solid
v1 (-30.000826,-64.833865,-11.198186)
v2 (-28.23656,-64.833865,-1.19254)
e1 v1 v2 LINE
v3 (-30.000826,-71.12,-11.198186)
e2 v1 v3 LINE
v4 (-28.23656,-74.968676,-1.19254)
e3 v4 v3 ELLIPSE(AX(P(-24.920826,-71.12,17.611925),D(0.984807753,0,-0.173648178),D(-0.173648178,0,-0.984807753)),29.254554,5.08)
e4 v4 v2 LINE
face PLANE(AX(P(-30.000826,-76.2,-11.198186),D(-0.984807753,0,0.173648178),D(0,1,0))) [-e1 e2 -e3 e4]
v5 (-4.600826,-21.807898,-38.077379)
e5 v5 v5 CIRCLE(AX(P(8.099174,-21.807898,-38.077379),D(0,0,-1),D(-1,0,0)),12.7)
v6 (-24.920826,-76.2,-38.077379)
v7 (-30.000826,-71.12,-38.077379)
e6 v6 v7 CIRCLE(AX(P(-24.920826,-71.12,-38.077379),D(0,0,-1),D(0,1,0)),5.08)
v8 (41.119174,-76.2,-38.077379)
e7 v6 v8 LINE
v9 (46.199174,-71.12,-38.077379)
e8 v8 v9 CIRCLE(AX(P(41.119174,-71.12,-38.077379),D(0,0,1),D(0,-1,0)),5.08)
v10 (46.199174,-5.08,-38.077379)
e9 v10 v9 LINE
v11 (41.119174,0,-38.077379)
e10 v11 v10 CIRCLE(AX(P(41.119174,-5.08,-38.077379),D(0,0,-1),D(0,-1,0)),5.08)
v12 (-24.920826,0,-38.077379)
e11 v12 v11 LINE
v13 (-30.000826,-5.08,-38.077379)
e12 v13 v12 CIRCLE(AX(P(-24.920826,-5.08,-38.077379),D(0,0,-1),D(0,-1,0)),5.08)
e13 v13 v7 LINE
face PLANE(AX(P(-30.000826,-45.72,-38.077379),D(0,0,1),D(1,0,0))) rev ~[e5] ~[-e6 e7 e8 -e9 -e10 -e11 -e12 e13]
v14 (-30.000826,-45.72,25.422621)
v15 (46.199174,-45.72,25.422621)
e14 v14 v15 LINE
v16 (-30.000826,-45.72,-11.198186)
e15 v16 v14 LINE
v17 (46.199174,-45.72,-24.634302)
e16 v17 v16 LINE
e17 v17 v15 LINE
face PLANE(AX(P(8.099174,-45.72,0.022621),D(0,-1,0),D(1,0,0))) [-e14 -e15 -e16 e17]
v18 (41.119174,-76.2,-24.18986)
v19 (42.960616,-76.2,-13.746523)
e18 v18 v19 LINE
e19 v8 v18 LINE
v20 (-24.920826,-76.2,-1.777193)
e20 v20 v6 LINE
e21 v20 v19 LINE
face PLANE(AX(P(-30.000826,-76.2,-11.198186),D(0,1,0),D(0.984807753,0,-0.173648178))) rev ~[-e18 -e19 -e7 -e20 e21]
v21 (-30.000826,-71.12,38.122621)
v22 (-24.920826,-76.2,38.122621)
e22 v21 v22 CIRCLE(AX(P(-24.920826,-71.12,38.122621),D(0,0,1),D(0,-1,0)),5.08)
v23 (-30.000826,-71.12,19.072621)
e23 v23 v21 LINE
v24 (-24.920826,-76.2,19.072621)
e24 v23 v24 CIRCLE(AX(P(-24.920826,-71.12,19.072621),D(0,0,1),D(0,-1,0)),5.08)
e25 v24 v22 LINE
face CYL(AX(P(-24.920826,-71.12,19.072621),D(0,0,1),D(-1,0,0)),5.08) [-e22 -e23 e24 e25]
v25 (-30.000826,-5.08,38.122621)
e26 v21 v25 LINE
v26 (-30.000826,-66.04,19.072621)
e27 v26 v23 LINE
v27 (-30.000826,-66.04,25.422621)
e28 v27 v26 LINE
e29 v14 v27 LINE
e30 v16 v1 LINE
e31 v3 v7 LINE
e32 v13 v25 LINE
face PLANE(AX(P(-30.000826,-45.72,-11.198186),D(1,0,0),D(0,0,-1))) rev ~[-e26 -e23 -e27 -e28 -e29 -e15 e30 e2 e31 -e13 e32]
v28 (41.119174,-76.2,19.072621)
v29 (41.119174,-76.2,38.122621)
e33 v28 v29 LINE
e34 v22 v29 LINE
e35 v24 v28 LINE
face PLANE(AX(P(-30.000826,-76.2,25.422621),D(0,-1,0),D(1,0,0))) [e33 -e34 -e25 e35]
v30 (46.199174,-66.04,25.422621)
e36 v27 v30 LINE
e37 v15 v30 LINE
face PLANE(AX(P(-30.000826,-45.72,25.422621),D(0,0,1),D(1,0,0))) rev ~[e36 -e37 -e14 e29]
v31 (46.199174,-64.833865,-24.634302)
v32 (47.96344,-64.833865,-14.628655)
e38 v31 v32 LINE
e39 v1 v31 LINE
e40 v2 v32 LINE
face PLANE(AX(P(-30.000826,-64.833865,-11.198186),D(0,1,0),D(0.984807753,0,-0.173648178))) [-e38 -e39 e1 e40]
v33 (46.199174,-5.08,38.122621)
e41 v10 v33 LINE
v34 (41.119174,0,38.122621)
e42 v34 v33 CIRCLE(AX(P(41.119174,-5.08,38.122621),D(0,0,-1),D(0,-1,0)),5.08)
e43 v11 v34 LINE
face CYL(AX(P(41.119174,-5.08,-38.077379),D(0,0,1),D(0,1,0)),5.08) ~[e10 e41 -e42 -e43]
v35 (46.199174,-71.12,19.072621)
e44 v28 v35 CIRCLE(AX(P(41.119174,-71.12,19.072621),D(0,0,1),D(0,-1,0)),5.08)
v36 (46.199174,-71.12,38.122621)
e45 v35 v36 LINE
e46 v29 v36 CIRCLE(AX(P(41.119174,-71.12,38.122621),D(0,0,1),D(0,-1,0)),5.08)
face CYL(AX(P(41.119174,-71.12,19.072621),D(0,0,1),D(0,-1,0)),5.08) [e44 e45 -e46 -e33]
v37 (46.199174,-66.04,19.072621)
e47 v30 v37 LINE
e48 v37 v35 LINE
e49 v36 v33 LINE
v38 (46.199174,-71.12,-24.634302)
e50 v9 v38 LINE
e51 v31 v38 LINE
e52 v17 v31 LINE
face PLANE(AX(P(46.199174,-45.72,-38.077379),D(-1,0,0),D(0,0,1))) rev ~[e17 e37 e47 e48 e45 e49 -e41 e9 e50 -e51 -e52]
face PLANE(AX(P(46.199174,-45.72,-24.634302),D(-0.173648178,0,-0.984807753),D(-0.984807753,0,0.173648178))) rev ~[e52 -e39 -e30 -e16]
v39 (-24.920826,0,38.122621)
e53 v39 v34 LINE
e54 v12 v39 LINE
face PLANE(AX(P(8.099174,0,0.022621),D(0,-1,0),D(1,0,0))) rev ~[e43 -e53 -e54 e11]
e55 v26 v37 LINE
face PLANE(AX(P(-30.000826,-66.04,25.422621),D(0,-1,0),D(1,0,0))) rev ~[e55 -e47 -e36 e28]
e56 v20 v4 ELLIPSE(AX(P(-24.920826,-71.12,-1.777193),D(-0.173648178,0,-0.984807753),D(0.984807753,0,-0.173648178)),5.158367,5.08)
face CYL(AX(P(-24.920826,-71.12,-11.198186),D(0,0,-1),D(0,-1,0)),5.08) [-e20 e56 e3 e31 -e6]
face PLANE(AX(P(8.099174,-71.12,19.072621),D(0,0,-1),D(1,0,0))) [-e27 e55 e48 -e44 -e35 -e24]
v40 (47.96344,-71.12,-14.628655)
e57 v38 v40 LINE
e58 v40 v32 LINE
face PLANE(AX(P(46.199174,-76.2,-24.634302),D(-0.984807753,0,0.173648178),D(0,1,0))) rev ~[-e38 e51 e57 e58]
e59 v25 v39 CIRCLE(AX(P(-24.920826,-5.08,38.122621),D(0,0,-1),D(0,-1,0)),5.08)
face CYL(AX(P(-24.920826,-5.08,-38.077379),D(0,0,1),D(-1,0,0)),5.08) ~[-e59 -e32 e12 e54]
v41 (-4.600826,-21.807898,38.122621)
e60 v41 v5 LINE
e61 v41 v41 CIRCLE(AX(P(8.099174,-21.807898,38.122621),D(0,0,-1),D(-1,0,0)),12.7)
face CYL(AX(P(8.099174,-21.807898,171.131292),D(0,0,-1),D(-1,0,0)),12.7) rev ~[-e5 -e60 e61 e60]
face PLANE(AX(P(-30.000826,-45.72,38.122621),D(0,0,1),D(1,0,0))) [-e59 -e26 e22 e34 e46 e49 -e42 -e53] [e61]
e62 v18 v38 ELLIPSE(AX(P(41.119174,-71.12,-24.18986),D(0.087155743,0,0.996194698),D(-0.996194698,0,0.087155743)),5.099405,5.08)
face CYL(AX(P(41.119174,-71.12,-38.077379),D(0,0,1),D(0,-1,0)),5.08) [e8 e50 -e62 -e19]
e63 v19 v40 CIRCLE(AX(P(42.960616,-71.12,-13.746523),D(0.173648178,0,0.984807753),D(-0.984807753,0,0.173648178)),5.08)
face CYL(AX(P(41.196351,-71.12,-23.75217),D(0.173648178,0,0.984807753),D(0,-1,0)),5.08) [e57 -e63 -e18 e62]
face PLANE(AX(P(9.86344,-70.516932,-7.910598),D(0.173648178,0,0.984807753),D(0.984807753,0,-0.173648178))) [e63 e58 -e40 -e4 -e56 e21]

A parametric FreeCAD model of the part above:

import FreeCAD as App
import Part
import Sketcher

V = App.Vector
Q = App.Units.Quantity


def edges_at(feature, points):
    """Names of the edges that pass closest to the given points."""
    edges = feature.Shape.Edges
    near = lambda p: min(range(len(edges)), key=lambda i: edges[i].distToShape(Part.Vertex(*p))[0])
    return sorted({f"Edge{near(p) + 1}" for p in points})

doc = App.newDocument("Part")
params = doc.addObject("Spreadsheet::Sheet", "Params")
for row, (alias, value) in enumerate([
    ("sketch1_width", "3 in"),
    ("pad1_length", "1.8 in"),
    ("sketch2_width", "3 in"),
    ("sketch2_height", "0.5 in"),
    ("pad2_length", "1.2 in"),
    ("sketch3_width", "3 in"),
    ("sketch3_height", "0.4 in"),
    ("pad3_length", "0.25 in"),
    ("sketch4_width", "3 in"),
    ("pad4_length", "1.2 in"),
    ("pad5_length", "0.4 in"),
    ("fillet_radius", "0.2 in"),
    ("sketch6_diameter", "1 in"),
    ("hole_diameter", "1 in"),
], start=1):
    params.set(f"A{row}", alias)
    params.set(f"B{row}", "=" + value)
    params.setAlias(f"B{row}", alias)

body = doc.addObject("PartDesign::Body", "Body")

sketch1 = body.newObject("Sketcher::SketchObject", "Sketch")
sketch1.AttachmentSupport = (doc.getObject("XZ_Plane"), [""])
sketch1.MapMode = "FlatFace"
sketch1.addGeometry([
    Part.LineSegment(V(-30.000826, 38.122621, 0), V(-30.000826, -38.077379, 0)),
    Part.LineSegment(V(-30.000826, -38.077379, 0), V(46.199174, -38.077379, 0)),
    Part.LineSegment(V(46.199174, -38.077379, 0), V(46.199174, 38.122621, 0)),
    Part.LineSegment(V(46.199174, 38.122621, 0), V(-30.000826, 38.122621, 0)),
], False)
sketch1.addConstraint([
    Sketcher.Constraint("Coincident", 0, 2, 1, 1),
    Sketcher.Constraint("Coincident", 1, 2, 2, 1),
    Sketcher.Constraint("Coincident", 2, 2, 3, 1),
    Sketcher.Constraint("Coincident", 3, 2, 0, 1),
    Sketcher.Constraint("Vertical", 0),
    Sketcher.Constraint("Horizontal", 1),
    Sketcher.Constraint("Vertical", 2),
    Sketcher.Constraint("Horizontal", 3),
    Sketcher.Constraint("Equal", 3, 0),
    Sketcher.Constraint("DistanceX", 1, 1, 1, 2, Q("3 in")),
    Sketcher.Constraint("DistanceY", 0, 2, -1, 1, Q("38.077379 mm")),
    Sketcher.Constraint("DistanceX", 0, 2, -1, 1, Q("30.000826 mm")),
])
sketch1.setExpression("Constraints[9]", "Params.sketch1_width")
pad1 = body.newObject("PartDesign::Pad", "Pad")
pad1.Profile = sketch1
pad1.setExpression("Length", "Params.pad1_length")

sketch2 = body.newObject("Sketcher::SketchObject", "Sketch001")
sketch2.AttachmentSupport = (doc.getObject("XZ_Plane"), [""])
sketch2.MapMode = "FlatFace"
sketch2.AttachmentOffset = App.Placement(V(0, 0, 1.8 * 25.4), App.Rotation())
sketch2.addGeometry([
    Part.LineSegment(V(-30.000826, 38.122621, 0), V(-30.000826, 25.422621, 0)),
    Part.LineSegment(V(-30.000826, 25.422621, 0), V(46.199174, 25.422621, 0)),
    Part.LineSegment(V(46.199174, 25.422621, 0), V(46.199174, 38.122621, 0)),
    Part.LineSegment(V(46.199174, 38.122621, 0), V(-30.000826, 38.122621, 0)),
], False)
sketch2.addConstraint([
    Sketcher.Constraint("Coincident", 0, 2, 1, 1),
    Sketcher.Constraint("Coincident", 1, 2, 2, 1),
    Sketcher.Constraint("Coincident", 2, 2, 3, 1),
    Sketcher.Constraint("Coincident", 3, 2, 0, 1),
    Sketcher.Constraint("Vertical", 0),
    Sketcher.Constraint("Horizontal", 1),
    Sketcher.Constraint("Vertical", 2),
    Sketcher.Constraint("Horizontal", 3),
    Sketcher.Constraint("DistanceX", 1, 1, 1, 2, Q("3 in")),
    Sketcher.Constraint("DistanceY", 0, 2, 0, 1, Q("0.5 in")),
    Sketcher.Constraint("DistanceY", -1, 1, 0, 2, Q("25.422621 mm")),
    Sketcher.Constraint("DistanceX", 0, 2, -1, 1, Q("30.000826 mm")),
])
sketch2.setExpression("Constraints[8]", "Params.sketch2_width")
sketch2.setExpression("Constraints[9]", "Params.sketch2_height")
pad2 = body.newObject("PartDesign::Pad", "Pad001")
pad2.Profile = sketch2
pad2.setExpression("Length", "Params.pad2_length")

sketch3 = body.newObject("Sketcher::SketchObject", "Sketch002")
sketch3.AttachmentSupport = (doc.getObject("XY_Plane"), [""])
sketch3.MapMode = "FlatFace"
sketch3.AttachmentOffset = App.Placement(V(0, 0, 25.422621), App.Rotation())
sketch3.addGeometry([
    Part.LineSegment(V(-30.000826, -76.2, 0), V(-30.000826, -66.04, 0)),
    Part.LineSegment(V(-30.000826, -66.04, 0), V(46.199174, -66.04, 0)),
    Part.LineSegment(V(46.199174, -66.04, 0), V(46.199174, -76.2, 0)),
    Part.LineSegment(V(46.199174, -76.2, 0), V(-30.000826, -76.2, 0)),
], False)
sketch3.addConstraint([
    Sketcher.Constraint("Coincident", 0, 2, 1, 1),
    Sketcher.Constraint("Coincident", 1, 2, 2, 1),
    Sketcher.Constraint("Coincident", 2, 2, 3, 1),
    Sketcher.Constraint("Coincident", 3, 2, 0, 1),
    Sketcher.Constraint("Vertical", 0),
    Sketcher.Constraint("Horizontal", 1),
    Sketcher.Constraint("Vertical", 2),
    Sketcher.Constraint("Horizontal", 3),
    Sketcher.Constraint("DistanceX", 1, 1, 1, 2, Q("3 in")),
    Sketcher.Constraint("DistanceY", 0, 1, 0, 2, Q("0.4 in")),
    Sketcher.Constraint("DistanceY", 2, 2, -1, 1, Q("3 in")),
    Sketcher.Constraint("DistanceX", 0, 2, -1, 1, Q("30.000826 mm")),
])
sketch3.setExpression("Constraints[8]", "Params.sketch3_width")
sketch3.setExpression("Constraints[9]", "Params.sketch3_height")
pad3 = body.newObject("PartDesign::Pad", "Pad002")
pad3.Profile = sketch3
pad3.setExpression("Length", "Params.pad3_length")
pad3.Reversed = True

sketch4 = body.newObject("Sketcher::SketchObject", "Sketch003")
sketch4.AttachmentSupport = (doc.getObject("XZ_Plane"), [""])
sketch4.MapMode = "FlatFace"
sketch4.AttachmentOffset = App.Placement(V(0, 0, 1.8 * 25.4), App.Rotation())
sketch4.addGeometry([
    Part.LineSegment(V(-30.000826, -11.198186, 0), V(-30.000826, -38.077379, 0)),
    Part.LineSegment(V(-30.000826, -38.077379, 0), V(46.199174, -38.077379, 0)),
    Part.LineSegment(V(46.199174, -38.077379, 0), V(46.199174, -24.634302, 0)),
    Part.LineSegment(V(46.199174, -24.634302, 0), V(-30.000826, -11.198186, 0)),
], False)
sketch4.addConstraint([
    Sketcher.Constraint("Coincident", 0, 2, 1, 1),
    Sketcher.Constraint("Coincident", 1, 2, 2, 1),
    Sketcher.Constraint("Coincident", 2, 2, 3, 1),
    Sketcher.Constraint("Coincident", 3, 2, 0, 1),
    Sketcher.Constraint("Vertical", 0),
    Sketcher.Constraint("Horizontal", 1),
    Sketcher.Constraint("Vertical", 2),
    Sketcher.Constraint("DistanceX", 1, 1, 1, 2, Q("3 in")),
    Sketcher.Constraint("Angle", 3, Q("170 deg")),
    Sketcher.Constraint("DistanceY", 0, 2, 0, 1, Q("26.879193 mm")),
    Sketcher.Constraint("DistanceY", 0, 2, -1, 1, Q("38.077379 mm")),
    Sketcher.Constraint("DistanceX", 0, 2, -1, 1, Q("30.000826 mm")),
])
sketch4.setExpression("Constraints[7]", "Params.sketch4_width")
pad4 = body.newObject("PartDesign::Pad", "Pad003")
pad4.Profile = sketch4
pad4.setExpression("Length", "Params.pad4_length")

sketch5 = body.newObject("Sketcher::SketchObject", "Sketch004")
sketch5.Placement = App.Placement(V(-2.819638, 0, -15.990963), App.Rotation(V(0.984807753, 0, -0.173648178), V(0, 1, 0), V(0.173648178, 0, 0.984807753), "ZXY"))
sketch5.addGeometry([
    Part.LineSegment(V(-27.600501, -64.833865, 0), V(-27.600501, -76.2, 0)),
    Part.LineSegment(V(-27.600501, -76.2, 0), V(49.775007, -76.2, 0)),
    Part.LineSegment(V(49.775007, -76.2, 0), V(49.775007, -64.833865, 0)),
    Part.LineSegment(V(49.775007, -64.833865, 0), V(-27.600501, -64.833865, 0)),
], False)
sketch5.addConstraint([
    Sketcher.Constraint("Coincident", 0, 2, 1, 1),
    Sketcher.Constraint("Coincident", 1, 2, 2, 1),
    Sketcher.Constraint("Coincident", 2, 2, 3, 1),
    Sketcher.Constraint("Coincident", 3, 2, 0, 1),
    Sketcher.Constraint("Vertical", 0),
    Sketcher.Constraint("Horizontal", 1),
    Sketcher.Constraint("Vertical", 2),
    Sketcher.Constraint("Horizontal", 3),
    Sketcher.Constraint("DistanceY", 0, 2, -1, 1, Q("3 in")),
    Sketcher.Constraint("DistanceX", 0, 2, -1, 1, Q("27.600501 mm")),
    Sketcher.Constraint("DistanceX", 1, 1, 1, 2, Q("77.375508 mm")),
    Sketcher.Constraint("DistanceY", 0, 2, 0, 1, Q("11.366135 mm")),
])
pad5 = body.newObject("PartDesign::Pad", "Pad004")
pad5.Profile = sketch5
pad5.setExpression("Length", "Params.pad5_length")
doc.recompute()

fillet = body.newObject("PartDesign::Fillet", "Fillet")
fillet.Base = (pad5, edges_at(pad5, [
    (-30.001, -76.2, 28.598),
    (-30.001, -76.2, -24.638),
    (46.199, -76.2, -31.356),
    (47.081, -76.2, -19.631),
    (46.199, -76.2, 28.598),
    (46.199, 0, 0.023),
    (-30.001, 0, 0.023),
]))
fillet.setExpression("Radius", "Params.fillet_radius")

sketch6 = body.newObject("Sketcher::SketchObject", "Sketch005")
sketch6.AttachmentSupport = (doc.getObject("XY_Plane"), [""])
sketch6.MapMode = "FlatFace"
sketch6.AttachmentOffset = App.Placement(V(0, 0, 38.122621), App.Rotation())
sketch6.addGeometry(Part.Circle(V(8.099174, -21.807898, 0), V(0, 0, 1), 12.7), False)
sketch6.addConstraint([
    Sketcher.Constraint("Diameter", 0, Q("1 in")),
    Sketcher.Constraint("DistanceX", -1, 1, 0, 3, Q("8.099174 mm")),
    Sketcher.Constraint("DistanceY", 0, 3, -1, 1, Q("21.807898 mm")),
])
sketch6.setExpression("Constraints[0]", "Params.sketch6_diameter")
doc.recompute()
hole = body.newObject("PartDesign::Hole", "Hole")
hole.Profile = sketch6
hole.ThreadType = "None"
hole.setExpression("Diameter", "Params.hole_diameter")
hole.DepthType = "ThroughAll"

doc.recompute()
